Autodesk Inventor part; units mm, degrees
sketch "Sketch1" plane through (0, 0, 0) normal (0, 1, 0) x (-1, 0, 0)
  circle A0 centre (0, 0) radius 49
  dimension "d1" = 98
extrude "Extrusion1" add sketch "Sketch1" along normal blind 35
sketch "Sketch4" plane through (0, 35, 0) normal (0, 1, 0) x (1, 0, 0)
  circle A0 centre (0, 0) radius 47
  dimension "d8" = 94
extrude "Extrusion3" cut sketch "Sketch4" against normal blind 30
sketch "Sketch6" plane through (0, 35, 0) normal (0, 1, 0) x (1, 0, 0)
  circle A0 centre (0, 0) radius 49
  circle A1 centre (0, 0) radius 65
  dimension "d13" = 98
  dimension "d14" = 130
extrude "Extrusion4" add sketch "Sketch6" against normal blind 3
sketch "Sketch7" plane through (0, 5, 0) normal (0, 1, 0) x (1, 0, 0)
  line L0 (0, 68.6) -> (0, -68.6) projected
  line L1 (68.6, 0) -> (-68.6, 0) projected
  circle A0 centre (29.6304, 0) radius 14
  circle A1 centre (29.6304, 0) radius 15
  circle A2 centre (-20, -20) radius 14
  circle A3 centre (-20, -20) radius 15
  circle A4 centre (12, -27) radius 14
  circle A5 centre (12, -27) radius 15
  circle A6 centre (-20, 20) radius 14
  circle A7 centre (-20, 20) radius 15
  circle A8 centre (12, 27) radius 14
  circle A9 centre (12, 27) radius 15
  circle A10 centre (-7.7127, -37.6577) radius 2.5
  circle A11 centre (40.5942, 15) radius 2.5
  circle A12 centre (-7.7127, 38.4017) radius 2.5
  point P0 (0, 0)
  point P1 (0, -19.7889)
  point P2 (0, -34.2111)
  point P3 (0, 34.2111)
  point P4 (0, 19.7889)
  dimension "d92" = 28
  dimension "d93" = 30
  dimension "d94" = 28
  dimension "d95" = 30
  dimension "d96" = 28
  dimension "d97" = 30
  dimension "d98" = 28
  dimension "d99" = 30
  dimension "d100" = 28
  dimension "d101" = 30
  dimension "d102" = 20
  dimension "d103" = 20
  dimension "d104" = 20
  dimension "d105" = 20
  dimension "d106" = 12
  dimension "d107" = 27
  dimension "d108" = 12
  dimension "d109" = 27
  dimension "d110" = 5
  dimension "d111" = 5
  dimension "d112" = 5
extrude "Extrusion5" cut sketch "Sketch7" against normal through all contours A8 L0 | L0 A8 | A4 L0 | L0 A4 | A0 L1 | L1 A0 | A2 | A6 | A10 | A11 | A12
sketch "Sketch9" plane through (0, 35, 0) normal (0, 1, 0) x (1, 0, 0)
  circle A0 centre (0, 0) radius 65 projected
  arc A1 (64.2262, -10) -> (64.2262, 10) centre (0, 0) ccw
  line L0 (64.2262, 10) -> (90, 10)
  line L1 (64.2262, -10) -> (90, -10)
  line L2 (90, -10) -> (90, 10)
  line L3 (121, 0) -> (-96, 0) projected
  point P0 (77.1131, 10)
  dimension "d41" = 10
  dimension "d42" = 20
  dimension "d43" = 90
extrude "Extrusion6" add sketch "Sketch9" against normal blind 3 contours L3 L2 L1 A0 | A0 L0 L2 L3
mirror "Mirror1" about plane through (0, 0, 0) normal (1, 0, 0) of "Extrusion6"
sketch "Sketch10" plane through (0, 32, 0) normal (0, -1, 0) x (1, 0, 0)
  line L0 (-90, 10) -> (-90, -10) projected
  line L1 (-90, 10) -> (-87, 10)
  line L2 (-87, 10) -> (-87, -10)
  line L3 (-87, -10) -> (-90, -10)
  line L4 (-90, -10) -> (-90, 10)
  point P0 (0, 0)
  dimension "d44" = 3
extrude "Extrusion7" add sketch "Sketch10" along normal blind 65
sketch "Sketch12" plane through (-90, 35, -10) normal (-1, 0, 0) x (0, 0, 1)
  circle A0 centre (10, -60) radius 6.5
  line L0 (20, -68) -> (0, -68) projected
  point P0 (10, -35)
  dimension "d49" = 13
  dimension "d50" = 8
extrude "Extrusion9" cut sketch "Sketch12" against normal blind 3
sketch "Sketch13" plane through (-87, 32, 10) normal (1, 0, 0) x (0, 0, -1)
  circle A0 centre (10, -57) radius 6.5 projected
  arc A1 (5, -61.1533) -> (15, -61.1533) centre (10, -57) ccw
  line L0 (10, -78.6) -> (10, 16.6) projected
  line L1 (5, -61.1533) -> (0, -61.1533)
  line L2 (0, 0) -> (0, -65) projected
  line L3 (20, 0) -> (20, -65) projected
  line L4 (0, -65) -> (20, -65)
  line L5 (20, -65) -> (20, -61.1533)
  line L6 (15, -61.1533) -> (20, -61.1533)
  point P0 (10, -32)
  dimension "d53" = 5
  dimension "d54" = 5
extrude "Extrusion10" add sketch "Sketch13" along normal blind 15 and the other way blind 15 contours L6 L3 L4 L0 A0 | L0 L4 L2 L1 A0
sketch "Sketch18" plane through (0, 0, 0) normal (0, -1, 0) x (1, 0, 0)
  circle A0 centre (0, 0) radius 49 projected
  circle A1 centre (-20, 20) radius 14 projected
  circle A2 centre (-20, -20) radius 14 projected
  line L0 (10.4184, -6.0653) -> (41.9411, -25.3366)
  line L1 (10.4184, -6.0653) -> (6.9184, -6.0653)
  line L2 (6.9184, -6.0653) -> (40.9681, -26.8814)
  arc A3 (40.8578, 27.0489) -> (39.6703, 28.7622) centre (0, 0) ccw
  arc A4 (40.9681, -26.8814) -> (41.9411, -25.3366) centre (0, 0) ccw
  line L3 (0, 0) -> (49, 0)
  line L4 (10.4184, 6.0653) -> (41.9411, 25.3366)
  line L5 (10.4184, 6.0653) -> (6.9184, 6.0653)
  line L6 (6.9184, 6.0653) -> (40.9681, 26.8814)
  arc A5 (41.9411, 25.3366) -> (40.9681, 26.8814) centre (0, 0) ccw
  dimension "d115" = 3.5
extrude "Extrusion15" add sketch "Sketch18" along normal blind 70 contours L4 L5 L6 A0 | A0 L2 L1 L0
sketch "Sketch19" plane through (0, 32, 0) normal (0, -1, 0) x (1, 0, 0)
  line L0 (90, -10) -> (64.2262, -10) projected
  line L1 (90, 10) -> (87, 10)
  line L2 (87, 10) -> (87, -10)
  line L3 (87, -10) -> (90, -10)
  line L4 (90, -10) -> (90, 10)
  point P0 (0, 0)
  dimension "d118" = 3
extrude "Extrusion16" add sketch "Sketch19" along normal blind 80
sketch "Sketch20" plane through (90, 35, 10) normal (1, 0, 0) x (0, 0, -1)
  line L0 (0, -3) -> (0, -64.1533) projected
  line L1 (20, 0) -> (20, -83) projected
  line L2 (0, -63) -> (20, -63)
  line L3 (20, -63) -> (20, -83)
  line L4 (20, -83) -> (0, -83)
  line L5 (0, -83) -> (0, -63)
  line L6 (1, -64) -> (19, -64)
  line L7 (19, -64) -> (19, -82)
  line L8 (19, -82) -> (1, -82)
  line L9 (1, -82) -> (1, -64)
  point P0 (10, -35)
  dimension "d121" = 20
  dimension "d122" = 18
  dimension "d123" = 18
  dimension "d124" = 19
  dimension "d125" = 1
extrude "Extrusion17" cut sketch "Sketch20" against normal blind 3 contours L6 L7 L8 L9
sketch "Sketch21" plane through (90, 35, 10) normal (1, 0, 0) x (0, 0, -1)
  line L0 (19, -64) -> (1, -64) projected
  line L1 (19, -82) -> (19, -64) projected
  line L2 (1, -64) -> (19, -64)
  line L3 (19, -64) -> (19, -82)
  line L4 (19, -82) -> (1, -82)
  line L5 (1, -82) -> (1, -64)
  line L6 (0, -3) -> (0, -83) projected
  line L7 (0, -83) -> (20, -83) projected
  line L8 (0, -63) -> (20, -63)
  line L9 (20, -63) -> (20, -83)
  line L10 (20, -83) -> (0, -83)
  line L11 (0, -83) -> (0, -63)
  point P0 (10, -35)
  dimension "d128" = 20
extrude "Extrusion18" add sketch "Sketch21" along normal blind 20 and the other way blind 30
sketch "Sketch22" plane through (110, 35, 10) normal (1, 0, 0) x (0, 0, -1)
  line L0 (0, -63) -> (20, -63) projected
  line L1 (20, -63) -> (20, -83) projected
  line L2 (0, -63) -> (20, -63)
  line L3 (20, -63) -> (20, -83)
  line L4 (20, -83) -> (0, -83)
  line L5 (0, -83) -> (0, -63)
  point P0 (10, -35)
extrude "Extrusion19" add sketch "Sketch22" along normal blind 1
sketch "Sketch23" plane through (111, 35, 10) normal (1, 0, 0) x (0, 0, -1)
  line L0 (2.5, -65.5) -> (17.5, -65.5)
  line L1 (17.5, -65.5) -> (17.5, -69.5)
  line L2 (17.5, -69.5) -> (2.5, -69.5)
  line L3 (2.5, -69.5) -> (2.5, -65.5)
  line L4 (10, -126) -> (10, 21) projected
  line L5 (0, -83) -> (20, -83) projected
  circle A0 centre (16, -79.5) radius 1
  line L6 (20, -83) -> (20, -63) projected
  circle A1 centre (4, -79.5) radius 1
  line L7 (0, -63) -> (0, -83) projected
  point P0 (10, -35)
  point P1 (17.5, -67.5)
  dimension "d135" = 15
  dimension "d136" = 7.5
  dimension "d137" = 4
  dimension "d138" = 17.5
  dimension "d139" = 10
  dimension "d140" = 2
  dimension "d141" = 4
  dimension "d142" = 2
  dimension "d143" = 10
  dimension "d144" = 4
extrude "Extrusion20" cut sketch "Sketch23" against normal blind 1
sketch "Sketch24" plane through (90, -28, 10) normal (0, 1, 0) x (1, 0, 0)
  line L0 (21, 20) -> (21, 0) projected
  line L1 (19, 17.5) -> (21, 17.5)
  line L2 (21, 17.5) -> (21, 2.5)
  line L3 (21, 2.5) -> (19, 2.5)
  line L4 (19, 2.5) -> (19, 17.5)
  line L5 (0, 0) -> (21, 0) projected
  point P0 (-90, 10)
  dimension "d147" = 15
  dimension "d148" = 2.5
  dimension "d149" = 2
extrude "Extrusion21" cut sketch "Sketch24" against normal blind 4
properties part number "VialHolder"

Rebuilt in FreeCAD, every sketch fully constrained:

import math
import FreeCAD as App
import Part
import Sketcher
Q = App.Units.Quantity


def add_polygon(sketch, points):
    """Adds a closed chain of lines whose ends are joined by coincident constraints."""
    first, n = sketch.GeometryCount, len(points)
    for a, b in zip(points, points[1:] + points[:1]):
        sketch.addGeometry(Part.LineSegment(App.Vector(*a, 0), App.Vector(*b, 0)), False)
    for i in range(n):
        sketch.addConstraint(Sketcher.Constraint("Coincident", first + i, 2, first + (i + 1) % n, 1))

doc = App.newDocument("Part")
params = doc.addObject("Spreadsheet::Sheet", "Params")
for row, (alias, value) in enumerate([
    ("sketch1_diameter", "98 mm"),
    ("pad1_length", "35 mm"),
    ("sketch2_diameter", "94 mm"),
    ("pocket1_length", "30 mm"),
    ("sketch3_diameter", "130 mm"),
    ("sketch3_diameter2", "98 mm"),
    ("pad2_length", "3 mm"),
    ("sketch4_diameter", "28 mm"),
    ("sketch4_diameter2", "5 mm"),
    ("sketch5_height", "20 mm"),
    ("sketch5_radius", "65 mm"),
    ("pad3_length", "3 mm"),
    ("sketch6_width", "3 mm"),
    ("sketch6_height", "20 mm"),
    ("pad4_length", "65 mm"),
    ("sketch7_diameter", "13 mm"),
    ("pocket3_length", "3 mm"),
    ("sketch8_height", "5 mm"),
    ("sketch8_radius", "6.5 mm"),
    ("pad5_length", "15 mm"),
    ("pad5_length2", "15 mm"),
    ("sketch9_width", "3.5 mm"),
    ("sketch9_radius", "49 mm"),
    ("pad6_length", "70 mm"),
    ("sketch10_width", "3 mm"),
    ("sketch10_height", "20 mm"),
    ("pad7_length", "80 mm"),
    ("sketch11_width", "18 mm"),
    ("pocket4_length", "3 mm"),
    ("sketch12_width", "20 mm"),
    ("sketch12_width2", "18 mm"),
    ("pad8_length", "20 mm"),
    ("pad8_length2", "30 mm"),
    ("sketch13_width", "20 mm"),
    ("pad9_length", "1 mm"),
    ("sketch14_diameter", "2 mm"),
    ("sketch14_width", "4 mm"),
    ("sketch14_height", "15 mm"),
    ("pocket5_length", "1 mm"),
    ("sketch15_width", "2 mm"),
    ("sketch15_height", "15 mm"),
    ("pocket6_length", "4 mm"),
], start=1):
    params.set(f"A{row}", alias)
    params.set(f"B{row}", "=" + value)
    params.setAlias(f"B{row}", alias)

body = doc.addObject("PartDesign::Body", "Body")

sketch1 = doc.addObject("Sketcher::SketchObject", "Sketch")
body.addObject(sketch1)
sketch1.AttachmentSupport = (doc.XZ_Plane, [""])
sketch1.MapMode = "FlatFace"
sketch1.addGeometry(Part.Circle(App.Vector(0, 0, 0), App.Vector(0, 0, 1), 49), False)
sketch1.addConstraint([
    Sketcher.Constraint("Coincident", 0, 3, -1, 1),
    Sketcher.Constraint("Diameter", 0, 98.0),
])
sketch1.setExpression("Constraints[1]", "Params.sketch1_diameter")
pad1 = doc.addObject("PartDesign::Pad", "Pad")
body.addObject(pad1)
pad1.Profile = sketch1
pad1.setExpression("Length", "Params.pad1_length")
pad1.Reversed = True

sketch2 = doc.addObject("Sketcher::SketchObject", "Sketch001")
body.addObject(sketch2)
sketch2.AttachmentSupport = (doc.XZ_Plane, [""])
sketch2.MapMode = "FlatFace"
sketch2.AttachmentOffset = App.Placement(App.Vector(0, 0, -35), App.Rotation())
sketch2.addGeometry(Part.Circle(App.Vector(0, 0, 0), App.Vector(0, 0, 1), 47), False)
sketch2.addConstraint([
    Sketcher.Constraint("Coincident", 0, 3, -1, 1),
    Sketcher.Constraint("Diameter", 0, 94.0),
])
sketch2.setExpression("Constraints[1]", "Params.sketch2_diameter")
pocket1 = doc.addObject("PartDesign::Pocket", "Pocket")
body.addObject(pocket1)
pocket1.Profile = sketch2
pocket1.setExpression("Length", "Params.pocket1_length")
pocket1.Reversed = True

sketch3 = doc.addObject("Sketcher::SketchObject", "Sketch002")
body.addObject(sketch3)
sketch3.AttachmentSupport = (doc.XZ_Plane, [""])
sketch3.MapMode = "FlatFace"
sketch3.AttachmentOffset = App.Placement(App.Vector(0, 0, -35), App.Rotation())
sketch3.addGeometry([
    Part.Circle(App.Vector(0, 0, 0), App.Vector(0, 0, 1), 65),
    Part.Circle(App.Vector(0, 0, 0), App.Vector(0, 0, 1), 49),
], False)
sketch3.addConstraint([
    Sketcher.Constraint("Coincident", 0, 3, -1, 1),
    Sketcher.Constraint("Coincident", 1, 3, -1, 1),
    Sketcher.Constraint("Diameter", 0, 130.0),
    Sketcher.Constraint("Diameter", 1, 98.0),
])
sketch3.setExpression("Constraints[2]", "Params.sketch3_diameter")
sketch3.setExpression("Constraints[3]", "Params.sketch3_diameter2")
pad2 = doc.addObject("PartDesign::Pad", "Pad001")
body.addObject(pad2)
pad2.Profile = sketch3
pad2.setExpression("Length", "Params.pad2_length")

sketch4 = doc.addObject("Sketcher::SketchObject", "Sketch003")
body.addObject(sketch4)
sketch4.AttachmentSupport = (doc.XZ_Plane, [""])
sketch4.MapMode = "FlatFace"
sketch4.AttachmentOffset = App.Placement(App.Vector(0, 0, -5), App.Rotation())
sketch4.addGeometry([
    Part.Circle(App.Vector(12, -27, 0), App.Vector(0, 0, 1), 14),
    Part.Circle(App.Vector(12, 27, 0), App.Vector(0, 0, 1), 14),
    Part.Circle(App.Vector(29.6, 0, 0), App.Vector(0, 0, 1), 14),
    Part.Circle(App.Vector(-20, 20, 0), App.Vector(0, 0, 1), 14),
    Part.Circle(App.Vector(-20, -20, 0), App.Vector(0, 0, 1), 14),
    Part.Circle(App.Vector(-7.7, 37.7, 0), App.Vector(0, 0, 1), 2.5),
    Part.Circle(App.Vector(40.6, -15, 0), App.Vector(0, 0, 1), 2.5),
    Part.Circle(App.Vector(-7.7, -38.4, 0), App.Vector(0, 0, 1), 2.5),
], False)
sketch4.addConstraint([
    Sketcher.Constraint("Equal", 0, 1),
    Sketcher.Constraint("Equal", 1, 2),
    Sketcher.Constraint("Equal", 2, 3),
    Sketcher.Constraint("Equal", 3, 4),
    Sketcher.Constraint("Equal", 5, 6),
    Sketcher.Constraint("Equal", 6, 7),
    Sketcher.Constraint("Symmetric", 0, 3, 1, 3, -1),
    Sketcher.Constraint("Symmetric", 3, 3, 4, 3, -1),
    Sketcher.Constraint("PointOnObject", 2, 3, -1),
    Sketcher.Constraint("Vertical", 5, 3, 7, 3),
    Sketcher.Constraint("Diameter", 0, 28.0),
    Sketcher.Constraint("Diameter", 5, 5.0),
    Sketcher.Constraint("DistanceX", -1, 1, 0, 3, 12.0),
    Sketcher.Constraint("DistanceY", 0, 3, -1, 1, 27.0),
    Sketcher.Constraint("DistanceX", 3, 3, -1, 1, 20.0),
    Sketcher.Constraint("DistanceY", -1, 1, 3, 3, 20.0),
    Sketcher.Constraint("DistanceY", 0, 3, 6, 3, 12.0),
    Sketcher.Constraint("DistanceX", 5, 3, 2, 3, 37.343),
    Sketcher.Constraint("DistanceX", 7, 3, 6, 3, 48.307),
    Sketcher.Constraint("DistanceX", -1, 1, 2, 3, 29.6304),
    Sketcher.Constraint("DistanceY", -1, 1, 5, 3, 37.6577),
    Sketcher.Constraint("DistanceY", 7, 3, -1, 1, 38.4017),
])
sketch4.setExpression("Constraints[10]", "Params.sketch4_diameter")
sketch4.setExpression("Constraints[11]", "Params.sketch4_diameter2")
pocket2 = doc.addObject("PartDesign::Pocket", "Pocket001")
body.addObject(pocket2)
pocket2.Profile = sketch4
pocket2.Type = "ThroughAll"
pocket2.Reversed = True

sketch5 = doc.addObject("Sketcher::SketchObject", "Sketch004")
body.addObject(sketch5)
sketch5.AttachmentSupport = (doc.XZ_Plane, [""])
sketch5.MapMode = "FlatFace"
sketch5.AttachmentOffset = App.Placement(App.Vector(0, 0, -35), App.Rotation())
sketch5.addGeometry([
    Part.LineSegment(App.Vector(90, 10, 0), App.Vector(90, -10, 0)),
    Part.LineSegment(App.Vector(90, -10, 0), App.Vector(64, -10, 0)),
    Part.ArcOfCircle(Part.Circle(App.Vector(0, 0, 0), App.Vector(0, 0, 1), 65), math.radians(-8.85), math.radians(8.85)),
    Part.LineSegment(App.Vector(64, 10, 0), App.Vector(90, 10, 0)),
], False)
sketch5.addConstraint([
    Sketcher.Constraint("Coincident", 0, 2, 1, 1),
    Sketcher.Constraint("Coincident", 1, 2, 2, 1),
    Sketcher.Constraint("Coincident", 2, 2, 3, 1),
    Sketcher.Constraint("Coincident", 3, 2, 0, 1),
    Sketcher.Constraint("Vertical", 0),
    Sketcher.Constraint("Horizontal", 1),
    Sketcher.Constraint("Horizontal", 3),
    Sketcher.Constraint("Coincident", 2, 3, -1, 1),
    Sketcher.Constraint("Vertical", 1, 2, 2, 2),
    Sketcher.Constraint("DistanceY", 0, 2, 0, 1, 20.0),
    Sketcher.Constraint("DistanceX", -1, 1, 0, 2, 90.0),
    Sketcher.Constraint("Radius", 2, 65.0),
])
sketch5.setExpression("Constraints[9]", "Params.sketch5_height")
sketch5.setExpression("Constraints[11]", "Params.sketch5_radius")
pad3 = doc.addObject("PartDesign::Pad", "Pad002")
body.addObject(pad3)
pad3.Profile = sketch5
pad3.setExpression("Length", "Params.pad3_length")
doc.recompute()

mirrored = doc.addObject("PartDesign::Mirrored", "Mirrored")
body.addObject(mirrored)
mirrored.Originals = [pad3]
mirrored.MirrorPlane = (doc.YZ_Plane, [""])
body.Tip = mirrored

sketch6 = doc.addObject("Sketcher::SketchObject", "Sketch005")
body.addObject(sketch6)
sketch6.AttachmentSupport = (doc.XZ_Plane, [""])
sketch6.MapMode = "FlatFace"
sketch6.AttachmentOffset = App.Placement(App.Vector(0, 0, -32), App.Rotation())
add_polygon(sketch6, [(-87, 10), (-90, 10), (-90, -10), (-87, -10)])
sketch6.addConstraint([
    Sketcher.Constraint("Horizontal", 0),
    Sketcher.Constraint("Vertical", 1),
    Sketcher.Constraint("Horizontal", 2),
    Sketcher.Constraint("Vertical", 3),
    Sketcher.Constraint("DistanceX", 0, 2, 0, 1, 3.0),
    Sketcher.Constraint("DistanceY", 1, 2, 1, 1, 20.0),
    Sketcher.Constraint("DistanceX", 0, 2, -1, 1, 90.0),
    Sketcher.Constraint("DistanceY", -1, 1, 0, 2, 10.0),
])
sketch6.setExpression("Constraints[8]", "Params.sketch6_width")
sketch6.setExpression("Constraints[9]", "Params.sketch6_height")
pad4 = doc.addObject("PartDesign::Pad", "Pad003")
body.addObject(pad4)
pad4.Profile = sketch6
pad4.setExpression("Length", "Params.pad4_length")

sketch7 = doc.addObject("Sketcher::SketchObject", "Sketch006")
body.addObject(sketch7)
sketch7.AttachmentSupport = (doc.YZ_Plane, [""])
sketch7.MapMode = "FlatFace"
sketch7.AttachmentOffset = App.Placement(App.Vector(0, 0, -90), App.Rotation())
sketch7.addGeometry(Part.Circle(App.Vector(-25, 0, 0), App.Vector(0, 0, 1), 6), False)
sketch7.addConstraint([
    Sketcher.Constraint("PointOnObject", 0, 3, -1),
    Sketcher.Constraint("Diameter", 0, 13.0),
    Sketcher.Constraint("DistanceX", 0, 3, -1, 1, 25.0),
])
sketch7.setExpression("Constraints[1]", "Params.sketch7_diameter")
pocket3 = doc.addObject("PartDesign::Pocket", "Pocket002")
body.addObject(pocket3)
pocket3.Profile = sketch7
pocket3.setExpression("Length", "Params.pocket3_length")
pocket3.Reversed = True

sketch8 = doc.addObject("Sketcher::SketchObject", "Sketch007")
body.addObject(sketch8)
sketch8.AttachmentSupport = (doc.YZ_Plane, [""])
sketch8.MapMode = "FlatFace"
sketch8.AttachmentOffset = App.Placement(App.Vector(0, 0, -87), App.Rotation())
sketch8.addGeometry([
    Part.LineSegment(App.Vector(-29.2, -10, 0), App.Vector(-29.2, -5, 0)),
    Part.ArcOfCircle(Part.Circle(App.Vector(-25, 0, 0), App.Vector(0, 0, 1), 6.5), math.radians(130), math.radians(230)),
    Part.LineSegment(App.Vector(-29.2, 5, 0), App.Vector(-29.2, 10, 0)),
    Part.LineSegment(App.Vector(-29.2, 10, 0), App.Vector(-33, 10, 0)),
    Part.LineSegment(App.Vector(-33, 10, 0), App.Vector(-33, -10, 0)),
    Part.LineSegment(App.Vector(-33, -10, 0), App.Vector(-29.2, -10, 0)),
], False)
sketch8.addConstraint([
    Sketcher.Constraint("Coincident", 0, 2, 1, 2),
    Sketcher.Constraint("Coincident", 1, 1, 2, 1),
    Sketcher.Constraint("Coincident", 2, 2, 3, 1),
    Sketcher.Constraint("Coincident", 3, 2, 4, 1),
    Sketcher.Constraint("Coincident", 4, 2, 5, 1),
    Sketcher.Constraint("Coincident", 5, 2, 0, 1),
    Sketcher.Constraint("Vertical", 0),
    Sketcher.Constraint("Vertical", 2),
    Sketcher.Constraint("Horizontal", 3),
    Sketcher.Constraint("Vertical", 4),
    Sketcher.Constraint("Horizontal", 5),
    Sketcher.Constraint("Symmetric", 0, 2, 1, 1, -1),
    Sketcher.Constraint("Equal", 0, 2),
    Sketcher.Constraint("DistanceY", 0, 1, 0, 2, 5.0),
    Sketcher.Constraint("DistanceY", 0, 2, -1, 1, 5.0),
    Sketcher.Constraint("Radius", 1, 6.5),
    Sketcher.Constraint("DistanceX", 1, 3, -1, 1, 25.0),
    Sketcher.Constraint("DistanceX", 3, 2, -1, 1, 33.0),
])
sketch8.setExpression("Constraints[13]", "Params.sketch8_height")
sketch8.setExpression("Constraints[15]", "Params.sketch8_radius")
pad5 = doc.addObject("PartDesign::Pad", "Pad004")
body.addObject(pad5)
pad5.Profile = sketch8
pad5.Type = "TwoLengths"
pad5.setExpression("Length", "Params.pad5_length")
pad5.setExpression("Length2", "Params.pad5_length2")

sketch9 = doc.addObject("Sketcher::SketchObject", "Sketch008")
body.addObject(sketch9)
sketch9.AttachmentSupport = (doc.XZ_Plane, [""])
sketch9.MapMode = "FlatFace"
sketch9.addGeometry([
    Part.LineSegment(App.Vector(10.4, 6.1, 0), App.Vector(41.9, 25.3, 0)),
    Part.ArcOfCircle(Part.Circle(App.Vector(0, 0, 0), App.Vector(0, 0, 1), 49), math.radians(31.14), math.radians(33.27)),
    Part.LineSegment(App.Vector(41, 26.9, 0), App.Vector(6.9, 6.1, 0)),
    Part.LineSegment(App.Vector(6.9, 6.1, 0), App.Vector(10.4, 6.1, 0)),
    Part.ArcOfCircle(Part.Circle(App.Vector(0, 0, 0), App.Vector(0, 0, 1), 49), math.radians(-33.27), math.radians(-31.14)),
    Part.LineSegment(App.Vector(41.9, -25.3, 0), App.Vector(10.4, -6.1, 0)),
    Part.LineSegment(App.Vector(10.4, -6.1, 0), App.Vector(6.9, -6.1, 0)),
    Part.LineSegment(App.Vector(6.9, -6.1, 0), App.Vector(41, -26.9, 0)),
], False)
sketch9.addConstraint([
    Sketcher.Constraint("Coincident", 0, 2, 1, 1),
    Sketcher.Constraint("Coincident", 1, 2, 2, 1),
    Sketcher.Constraint("Coincident", 2, 2, 3, 1),
    Sketcher.Constraint("Coincident", 3, 2, 0, 1),
    Sketcher.Constraint("Coincident", 4, 2, 5, 1),
    Sketcher.Constraint("Coincident", 5, 2, 6, 1),
    Sketcher.Constraint("Coincident", 6, 2, 7, 1),
    Sketcher.Constraint("Coincident", 7, 2, 4, 1),
    Sketcher.Constraint("Horizontal", 3),
    Sketcher.Constraint("Horizontal", 6),
    Sketcher.Constraint("Coincident", 1, 3, -1, 1),
    Sketcher.Constraint("Coincident", 4, 3, -1, 1),
    Sketcher.Constraint("Equal", 1, 4),
    Sketcher.Constraint("Symmetric", 3, 2, 5, 2, -1),
    Sketcher.Constraint("Parallel", 0, 2),
    Sketcher.Constraint("Parallel", 5, 7),
    Sketcher.Constraint("Vertical", 0, 2, 4, 2),
    Sketcher.Constraint("Vertical", 2, 2, 6, 2),
    Sketcher.Constraint("DistanceX", 3, 1, 3, 2, 3.5),
    Sketcher.Constraint("Radius", 1, 49.0),
    Sketcher.Constraint("Angle", 0, Q("31.4394 deg")),
    Sketcher.Constraint("DistanceX", -1, 1, 0, 2, 41.941),
    Sketcher.Constraint("DistanceY", 4, 2, 3, 2, 31.402),
])
sketch9.setExpression("Constraints[18]", "Params.sketch9_width")
sketch9.setExpression("Constraints[19]", "Params.sketch9_radius")
pad6 = doc.addObject("PartDesign::Pad", "Pad005")
body.addObject(pad6)
pad6.Profile = sketch9
pad6.setExpression("Length", "Params.pad6_length")

sketch10 = doc.addObject("Sketcher::SketchObject", "Sketch009")
body.addObject(sketch10)
sketch10.AttachmentSupport = (doc.XZ_Plane, [""])
sketch10.MapMode = "FlatFace"
sketch10.AttachmentOffset = App.Placement(App.Vector(0, 0, -32), App.Rotation())
add_polygon(sketch10, [(87, -10), (90, -10), (90, 10), (87, 10)])
sketch10.addConstraint([
    Sketcher.Constraint("Horizontal", 0),
    Sketcher.Constraint("Vertical", 1),
    Sketcher.Constraint("Horizontal", 2),
    Sketcher.Constraint("Vertical", 3),
    Sketcher.Constraint("DistanceX", 0, 1, 0, 2, 3.0),
    Sketcher.Constraint("DistanceY", 1, 1, 1, 2, 20.0),
    Sketcher.Constraint("DistanceX", -1, 1, 0, 2, 90.0),
    Sketcher.Constraint("DistanceY", 0, 2, -1, 1, 10.0),
])
sketch10.setExpression("Constraints[8]", "Params.sketch10_width")
sketch10.setExpression("Constraints[9]", "Params.sketch10_height")
pad7 = doc.addObject("PartDesign::Pad", "Pad006")
body.addObject(pad7)
pad7.Profile = sketch10
pad7.setExpression("Length", "Params.pad7_length")

sketch11 = doc.addObject("Sketcher::SketchObject", "Sketch010")
body.addObject(sketch11)
sketch11.AttachmentSupport = (doc.YZ_Plane, [""])
sketch11.MapMode = "FlatFace"
sketch11.AttachmentOffset = App.Placement(App.Vector(0, 0, 90), App.Rotation())
add_polygon(sketch11, [(-29, -9), (-29, 9), (-47, 9), (-47, -9)])
sketch11.addConstraint([
    Sketcher.Constraint("Vertical", 0),
    Sketcher.Constraint("Horizontal", 1),
    Sketcher.Constraint("Vertical", 2),
    Sketcher.Constraint("Horizontal", 3),
    Sketcher.Constraint("Equal", 3, 0),
    Sketcher.Constraint("DistanceX", 1, 2, 1, 1, 18.0),
    Sketcher.Constraint("DistanceX", 0, 2, -1, 1, 29.0),
    Sketcher.Constraint("DistanceY", -1, 1, 0, 2, 9.0),
])
sketch11.setExpression("Constraints[9]", "Params.sketch11_width")
pocket4 = doc.addObject("PartDesign::Pocket", "Pocket003")
body.addObject(pocket4)
pocket4.Profile = sketch11
pocket4.setExpression("Length", "Params.pocket4_length")

sketch12 = doc.addObject("Sketcher::SketchObject", "Sketch011")
body.addObject(sketch12)
sketch12.AttachmentSupport = (doc.YZ_Plane, [""])
sketch12.MapMode = "FlatFace"
sketch12.AttachmentOffset = App.Placement(App.Vector(0, 0, 90), App.Rotation())
add_polygon(sketch12, [(-28, -10), (-28, 10), (-48, 10), (-48, -10)])
add_polygon(sketch12, [(-29, 9), (-29, -9), (-47, -9), (-47, 9)])
sketch12.addConstraint([
    Sketcher.Constraint("Vertical", 0),
    Sketcher.Constraint("Horizontal", 1),
    Sketcher.Constraint("Vertical", 2),
    Sketcher.Constraint("Horizontal", 3),
    Sketcher.Constraint("Vertical", 4),
    Sketcher.Constraint("Horizontal", 5),
    Sketcher.Constraint("Vertical", 6),
    Sketcher.Constraint("Horizontal", 7),
    Sketcher.Constraint("Equal", 3, 0),
    Sketcher.Constraint("Equal", 7, 4),
    Sketcher.Constraint("DistanceX", 1, 2, 1, 1, 20.0),
    Sketcher.Constraint("DistanceX", 5, 2, 5, 1, 18.0),
    Sketcher.Constraint("DistanceX", 0, 2, -1, 1, 28.0),
    Sketcher.Constraint("DistanceY", -1, 1, 0, 2, 10.0),
    Sketcher.Constraint("DistanceX", 4, 2, -1, 1, 29.0),
    Sketcher.Constraint("DistanceY", 4, 2, -1, 1, 9.0),
])
sketch12.setExpression("Constraints[18]", "Params.sketch12_width")
sketch12.setExpression("Constraints[19]", "Params.sketch12_width2")
pad8 = doc.addObject("PartDesign::Pad", "Pad007")
body.addObject(pad8)
pad8.Profile = sketch12
pad8.Type = "TwoLengths"
pad8.setExpression("Length", "Params.pad8_length")
pad8.setExpression("Length2", "Params.pad8_length2")

sketch13 = doc.addObject("Sketcher::SketchObject", "Sketch012")
body.addObject(sketch13)
sketch13.AttachmentSupport = (doc.YZ_Plane, [""])
sketch13.MapMode = "FlatFace"
sketch13.AttachmentOffset = App.Placement(App.Vector(0, 0, 110), App.Rotation())
add_polygon(sketch13, [(-28, -10), (-28, 10), (-48, 10), (-48, -10)])
sketch13.addConstraint([
    Sketcher.Constraint("Vertical", 0),
    Sketcher.Constraint("Horizontal", 1),
    Sketcher.Constraint("Vertical", 2),
    Sketcher.Constraint("Horizontal", 3),
    Sketcher.Constraint("Equal", 3, 0),
    Sketcher.Constraint("DistanceX", 1, 2, 1, 1, 20.0),
    Sketcher.Constraint("DistanceX", 0, 2, -1, 1, 28.0),
    Sketcher.Constraint("DistanceY", -1, 1, 0, 2, 10.0),
])
sketch13.setExpression("Constraints[9]", "Params.sketch13_width")
pad9 = doc.addObject("PartDesign::Pad", "Pad008")
body.addObject(pad9)
pad9.Profile = sketch13
pad9.setExpression("Length", "Params.pad9_length")

sketch14 = doc.addObject("Sketcher::SketchObject", "Sketch013")
body.addObject(sketch14)
sketch14.AttachmentSupport = (doc.YZ_Plane, [""])
sketch14.MapMode = "FlatFace"
sketch14.AttachmentOffset = App.Placement(App.Vector(0, 0, 111), App.Rotation())
add_polygon(sketch14, [(-30.5, 7.5), (-34.5, 7.5), (-34.5, -7.5), (-30.5, -7.5)])
sketch14.addGeometry(Part.Circle(App.Vector(-44.5, -6, 0), App.Vector(0, 0, 1), 1), False)
sketch14.addGeometry(Part.Circle(App.Vector(-44.5, 6, 0), App.Vector(0, 0, 1), 1), False)
sketch14.addConstraint([
    Sketcher.Constraint("Horizontal", 0),
    Sketcher.Constraint("Vertical", 1),
    Sketcher.Constraint("Horizontal", 2),
    Sketcher.Constraint("Vertical", 3),
    Sketcher.Constraint("Equal", 4, 5),
    Sketcher.Constraint("Symmetric", 4, 3, 5, 3, -1),
    Sketcher.Constraint("Diameter", 4, 2.0),
    Sketcher.Constraint("DistanceX", 0, 2, 0, 1, 4.0),
    Sketcher.Constraint("DistanceY", 1, 2, 1, 1, 15.0),
    Sketcher.Constraint("DistanceX", 5, 3, 0, 2, 10.0),
    Sketcher.Constraint("DistanceY", -1, 1, 0, 2, 7.5),
    Sketcher.Constraint("DistanceY", 4, 3, -1, 1, 6.0),
    Sketcher.Constraint("DistanceX", 4, 3, -1, 1, 44.5),
])
sketch14.setExpression("Constraints[10]", "Params.sketch14_diameter")
sketch14.setExpression("Constraints[11]", "Params.sketch14_width")
sketch14.setExpression("Constraints[12]", "Params.sketch14_height")
pocket5 = doc.addObject("PartDesign::Pocket", "Pocket004")
body.addObject(pocket5)
pocket5.Profile = sketch14
pocket5.setExpression("Length", "Params.pocket5_length")

sketch15 = doc.addObject("Sketcher::SketchObject", "Sketch014")
body.addObject(sketch15)
sketch15.AttachmentSupport = (doc.XZ_Plane, [""])
sketch15.MapMode = "FlatFace"
sketch15.AttachmentOffset = App.Placement(App.Vector(0, 0, 28), App.Rotation())
add_polygon(sketch15, [(111, 7.5), (111, -7.5), (109, -7.5), (109, 7.5)])
sketch15.addConstraint([
    Sketcher.Constraint("Vertical", 0),
    Sketcher.Constraint("Horizontal", 1),
    Sketcher.Constraint("Vertical", 2),
    Sketcher.Constraint("Horizontal", 3),
    Sketcher.Constraint("DistanceX", 1, 2, 1, 1, 2.0),
    Sketcher.Constraint("DistanceY", 0, 2, 0, 1, 15.0),
    Sketcher.Constraint("DistanceX", -1, 1, 0, 2, 111.0),
    Sketcher.Constraint("DistanceY", 0, 2, -1, 1, 7.5),
])
sketch15.setExpression("Constraints[8]", "Params.sketch15_width")
sketch15.setExpression("Constraints[9]", "Params.sketch15_height")
pocket6 = doc.addObject("PartDesign::Pocket", "Pocket005")
body.addObject(pocket6)
pocket6.Profile = sketch15
pocket6.setExpression("Length", "Params.pocket6_length")
pocket6.Reversed = True

doc.recompute()
